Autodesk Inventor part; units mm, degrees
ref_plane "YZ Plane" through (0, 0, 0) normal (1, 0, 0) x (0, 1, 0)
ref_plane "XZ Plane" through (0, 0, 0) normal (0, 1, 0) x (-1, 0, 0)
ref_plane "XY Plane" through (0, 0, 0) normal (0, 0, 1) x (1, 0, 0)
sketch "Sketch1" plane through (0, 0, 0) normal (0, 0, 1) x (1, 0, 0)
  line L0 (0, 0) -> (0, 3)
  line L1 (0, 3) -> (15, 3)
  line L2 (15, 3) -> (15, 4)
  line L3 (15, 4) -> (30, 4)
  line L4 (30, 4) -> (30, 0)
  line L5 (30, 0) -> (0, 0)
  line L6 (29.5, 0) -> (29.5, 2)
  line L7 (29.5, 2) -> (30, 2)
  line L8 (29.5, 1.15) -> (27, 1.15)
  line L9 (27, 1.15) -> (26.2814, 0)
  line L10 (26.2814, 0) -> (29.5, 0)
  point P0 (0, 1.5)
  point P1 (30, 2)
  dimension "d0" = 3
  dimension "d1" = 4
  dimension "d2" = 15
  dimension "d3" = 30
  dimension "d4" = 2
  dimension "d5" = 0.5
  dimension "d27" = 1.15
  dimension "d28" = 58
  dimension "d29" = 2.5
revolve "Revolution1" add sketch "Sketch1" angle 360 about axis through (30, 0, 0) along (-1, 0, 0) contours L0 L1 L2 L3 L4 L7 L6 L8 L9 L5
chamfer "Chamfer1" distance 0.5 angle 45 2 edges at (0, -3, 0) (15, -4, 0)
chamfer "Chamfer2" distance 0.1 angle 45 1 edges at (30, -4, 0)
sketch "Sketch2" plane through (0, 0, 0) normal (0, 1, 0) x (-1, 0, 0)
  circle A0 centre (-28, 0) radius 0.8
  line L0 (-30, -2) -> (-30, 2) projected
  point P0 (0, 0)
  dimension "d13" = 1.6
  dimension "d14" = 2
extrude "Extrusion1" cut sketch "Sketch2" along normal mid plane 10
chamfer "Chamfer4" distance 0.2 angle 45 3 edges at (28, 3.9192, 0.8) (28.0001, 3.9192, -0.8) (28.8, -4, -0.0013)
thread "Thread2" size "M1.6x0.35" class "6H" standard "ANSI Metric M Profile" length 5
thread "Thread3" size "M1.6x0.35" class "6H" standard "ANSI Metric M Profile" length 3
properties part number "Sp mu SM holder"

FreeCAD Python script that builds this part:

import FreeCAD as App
import Part
import Sketcher
from FreeCAD import Vector
Q = App.Units.Quantity


def edges_at(feature, points):
    """Names of the edges that pass closest to the given points."""
    edges = feature.Shape.Edges
    near = lambda p: min(range(len(edges)), key=lambda i: edges[i].distToShape(Part.Vertex(*p))[0])
    return sorted({f"Edge{near(p) + 1}" for p in points})

doc = App.newDocument("Part")
params = doc.addObject("Spreadsheet::Sheet", "Params")
for row, (alias, value) in enumerate([
    ("sketch1_width", "15 mm"),
    ("sketch1_height", "3 mm"),
    ("sketch1_height2", "2 mm"),
    ("sketch1_width2", "2.5 mm"),
    ("sketch1_width3", "0.5 mm"),
    ("revolution_angle", "360 deg"),
    ("chamfer_size", "0.5 mm"),
    ("chamfer2_size", "0.1 mm"),
    ("sketch2_diameter", "1.6 mm"),
    ("pocket1_length", "10 mm"),
    ("chamfer3_size", "0.2 mm"),
], start=1):
    params.set(f"A{row}", alias)
    params.set(f"B{row}", "=" + value)
    params.setAlias(f"B{row}", alias)

body = doc.addObject("PartDesign::Body", "Body")

sketch1 = doc.addObject("Sketcher::SketchObject", "Sketch")
body.addObject(sketch1)
sketch1.AttachmentSupport = (doc.XY_Plane, [""])
sketch1.MapMode = "FlatFace"
sketch1.addGeometry([
    Part.LineSegment(Vector(0, 3, 0), Vector(0, 0, 0)),
    Part.LineSegment(Vector(0, 0, 0), Vector(26.3, 0, 0)),
    Part.LineSegment(Vector(26.3, 0, 0), Vector(27, 1.1, 0)),
    Part.LineSegment(Vector(27, 1.1, 0), Vector(29.5, 1.1, 0)),
    Part.LineSegment(Vector(29.5, 1.1, 0), Vector(29.5, 2, 0)),
    Part.LineSegment(Vector(29.5, 2, 0), Vector(30, 2, 0)),
    Part.LineSegment(Vector(30, 2, 0), Vector(30, 4, 0)),
    Part.LineSegment(Vector(30, 4, 0), Vector(15, 4, 0)),
    Part.LineSegment(Vector(15, 4, 0), Vector(15, 3, 0)),
    Part.LineSegment(Vector(15, 3, 0), Vector(0, 3, 0)),
], False)
sketch1.addConstraint([
    Sketcher.Constraint("Coincident", 0, 2, 1, 1),
    Sketcher.Constraint("Coincident", 1, 2, 2, 1),
    Sketcher.Constraint("Coincident", 2, 2, 3, 1),
    Sketcher.Constraint("Coincident", 3, 2, 4, 1),
    Sketcher.Constraint("Coincident", 4, 2, 5, 1),
    Sketcher.Constraint("Coincident", 5, 2, 6, 1),
    Sketcher.Constraint("Coincident", 6, 2, 7, 1),
    Sketcher.Constraint("Coincident", 7, 2, 8, 1),
    Sketcher.Constraint("Coincident", 8, 2, 9, 1),
    Sketcher.Constraint("Coincident", 9, 2, 0, 1),
    Sketcher.Constraint("Vertical", 0),
    Sketcher.Constraint("Horizontal", 1),
    Sketcher.Constraint("Horizontal", 3),
    Sketcher.Constraint("Vertical", 4),
    Sketcher.Constraint("Horizontal", 5),
    Sketcher.Constraint("Vertical", 6),
    Sketcher.Constraint("Horizontal", 7),
    Sketcher.Constraint("Vertical", 8),
    Sketcher.Constraint("Horizontal", 9),
    Sketcher.Constraint("Coincident", 0, 2, -1, 1),
    Sketcher.Constraint("Equal", 7, 9),
    Sketcher.Constraint("DistanceX", 7, 2, 7, 1, Q("15 mm")),
    Sketcher.Constraint("DistanceY", 0, 2, 0, 1, Q("3 mm")),
    Sketcher.Constraint("DistanceY", 6, 1, 6, 2, Q("2 mm")),
    Sketcher.Constraint("Angle", 2, Q("58 deg")),
    Sketcher.Constraint("DistanceX", 3, 1, 3, 2, Q("2.5 mm")),
    Sketcher.Constraint("DistanceX", 5, 1, 5, 2, Q("0.5 mm")),
    Sketcher.Constraint("DistanceY", -1, 1, 4, 2, Q("2 mm")),
    Sketcher.Constraint("DistanceY", -1, 1, 2, 2, Q("1.15 mm")),
])
sketch1.setExpression("Constraints[21]", "Params.sketch1_width")
sketch1.setExpression("Constraints[22]", "Params.sketch1_height")
sketch1.setExpression("Constraints[23]", "Params.sketch1_height2")
sketch1.setExpression("Constraints[25]", "Params.sketch1_width2")
sketch1.setExpression("Constraints[26]", "Params.sketch1_width3")
revolution = doc.addObject("PartDesign::Revolution", "Revolution")
body.addObject(revolution)
revolution.Profile = sketch1
revolution.ReferenceAxis = (sketch1, ["H_Axis"])
revolution.setExpression("Angle", "Params.revolution_angle")
doc.recompute()

chamfer = doc.addObject("PartDesign::Chamfer", "Chamfer")
body.addObject(chamfer)
chamfer.Base = (revolution, edges_at(revolution, [(0, -3, 0), (15, -4, 0)]))
chamfer.setExpression("Size", "Params.chamfer_size")
doc.recompute()

chamfer2 = doc.addObject("PartDesign::Chamfer", "Chamfer001")
body.addObject(chamfer2)
chamfer2.Base = (chamfer, edges_at(chamfer, [(30, -4, 0)]))
chamfer2.setExpression("Size", "Params.chamfer2_size")

sketch2 = doc.addObject("Sketcher::SketchObject", "Sketch001")
body.addObject(sketch2)
sketch2.AttachmentSupport = (doc.XZ_Plane, [""])
sketch2.MapMode = "FlatFace"
sketch2.addGeometry(Part.Circle(Vector(28, 0, 0), Vector(0, 0, 1), 0.8), False)
sketch2.addConstraint([
    Sketcher.Constraint("PointOnObject", 0, 3, -1),
    Sketcher.Constraint("Diameter", 0, Q("1.6 mm")),
    Sketcher.Constraint("DistanceX", -1, 1, 0, 3, Q("28 mm")),
])
sketch2.setExpression("Constraints[1]", "Params.sketch2_diameter")
pocket1 = doc.addObject("PartDesign::Pocket", "Pocket")
body.addObject(pocket1)
pocket1.Profile = sketch2
pocket1.setExpression("Length", "Params.pocket1_length")
pocket1.Midplane = True
doc.recompute()

chamfer3 = doc.addObject("PartDesign::Chamfer", "Chamfer002")
body.addObject(chamfer3)
chamfer3.Base = (pocket1, edges_at(pocket1, [(28, 3.919, 0.8), (28, 3.919, -0.8), (28.8, -4, -0.001)]))
chamfer3.setExpression("Size", "Params.chamfer3_size")

doc.recompute()
